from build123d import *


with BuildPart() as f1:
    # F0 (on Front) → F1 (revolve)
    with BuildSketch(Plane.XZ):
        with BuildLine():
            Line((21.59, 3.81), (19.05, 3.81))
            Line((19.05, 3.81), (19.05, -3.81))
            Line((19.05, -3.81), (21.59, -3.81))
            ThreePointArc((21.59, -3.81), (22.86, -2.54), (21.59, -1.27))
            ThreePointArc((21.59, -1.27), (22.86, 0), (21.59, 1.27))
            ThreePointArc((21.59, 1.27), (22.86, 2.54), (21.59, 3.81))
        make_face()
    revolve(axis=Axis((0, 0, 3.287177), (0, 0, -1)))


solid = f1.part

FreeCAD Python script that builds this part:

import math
import FreeCAD as App
import Part
import Sketcher

V = App.Vector
Q = App.Units.Quantity

doc = App.newDocument("Part")
body = doc.addObject("PartDesign::Body", "Body")

sketch1 = body.newObject("Sketcher::SketchObject", "Sketch")
sketch1.AttachmentSupport = (doc.getObject("XZ_Plane"), [""])
sketch1.MapMode = "FlatFace"
sketch1.addGeometry([
    Part.LineSegment(V(21.6, 3.8, 0), V(19.1, 3.8, 0)),
    Part.LineSegment(V(19.1, 3.8, 0), V(19.1, -3.8, 0)),
    Part.LineSegment(V(19.1, -3.8, 0), V(21.6, -3.8, 0)),
    Part.ArcOfCircle(Part.Circle(V(21.6, -2.5, 0), V(0, 0, 1), 1.3), math.radians(-90), math.radians(90)),
    Part.ArcOfCircle(Part.Circle(V(21.6, 0, 0), V(0, 0, 1), 1.3), math.radians(-90), math.radians(90)),
    Part.ArcOfCircle(Part.Circle(V(21.6, 2.5, 0), V(0, 0, 1), 1.3), math.radians(-90), math.radians(90)),
], False)
sketch1.addConstraint([
    Sketcher.Constraint("Coincident", 0, 2, 1, 1),
    Sketcher.Constraint("Coincident", 1, 2, 2, 1),
    Sketcher.Constraint("Tangent", 2, 2, 3, 1),
    Sketcher.Constraint("Tangent", 3, 2, 4, 1),
    Sketcher.Constraint("Tangent", 4, 2, 5, 1),
    Sketcher.Constraint("Tangent", 5, 2, 0, 1),
    Sketcher.Constraint("Horizontal", 0),
    Sketcher.Constraint("Vertical", 1),
    Sketcher.Constraint("Horizontal", 2),
    Sketcher.Constraint("Equal", 3, 4),
    Sketcher.Constraint("Equal", 4, 5),
    Sketcher.Constraint("Symmetric", 3, 3, 5, 3, -1),
    Sketcher.Constraint("Vertical", 3, 3, 4, 3),
    Sketcher.Constraint("Radius", 3, Q("0.05 in")),
    Sketcher.Constraint("DistanceX", 0, 2, 0, 1, Q("0.1 in")),
    Sketcher.Constraint("DistanceX", -1, 1, 3, 3, Q("0.85 in")),
])
revolution = body.newObject("PartDesign::Revolution", "Revolution")
revolution.Profile = sketch1
revolution.ReferenceAxis = (sketch1, ["V_Axis"])
revolution.Angle = 360

doc.recompute()
